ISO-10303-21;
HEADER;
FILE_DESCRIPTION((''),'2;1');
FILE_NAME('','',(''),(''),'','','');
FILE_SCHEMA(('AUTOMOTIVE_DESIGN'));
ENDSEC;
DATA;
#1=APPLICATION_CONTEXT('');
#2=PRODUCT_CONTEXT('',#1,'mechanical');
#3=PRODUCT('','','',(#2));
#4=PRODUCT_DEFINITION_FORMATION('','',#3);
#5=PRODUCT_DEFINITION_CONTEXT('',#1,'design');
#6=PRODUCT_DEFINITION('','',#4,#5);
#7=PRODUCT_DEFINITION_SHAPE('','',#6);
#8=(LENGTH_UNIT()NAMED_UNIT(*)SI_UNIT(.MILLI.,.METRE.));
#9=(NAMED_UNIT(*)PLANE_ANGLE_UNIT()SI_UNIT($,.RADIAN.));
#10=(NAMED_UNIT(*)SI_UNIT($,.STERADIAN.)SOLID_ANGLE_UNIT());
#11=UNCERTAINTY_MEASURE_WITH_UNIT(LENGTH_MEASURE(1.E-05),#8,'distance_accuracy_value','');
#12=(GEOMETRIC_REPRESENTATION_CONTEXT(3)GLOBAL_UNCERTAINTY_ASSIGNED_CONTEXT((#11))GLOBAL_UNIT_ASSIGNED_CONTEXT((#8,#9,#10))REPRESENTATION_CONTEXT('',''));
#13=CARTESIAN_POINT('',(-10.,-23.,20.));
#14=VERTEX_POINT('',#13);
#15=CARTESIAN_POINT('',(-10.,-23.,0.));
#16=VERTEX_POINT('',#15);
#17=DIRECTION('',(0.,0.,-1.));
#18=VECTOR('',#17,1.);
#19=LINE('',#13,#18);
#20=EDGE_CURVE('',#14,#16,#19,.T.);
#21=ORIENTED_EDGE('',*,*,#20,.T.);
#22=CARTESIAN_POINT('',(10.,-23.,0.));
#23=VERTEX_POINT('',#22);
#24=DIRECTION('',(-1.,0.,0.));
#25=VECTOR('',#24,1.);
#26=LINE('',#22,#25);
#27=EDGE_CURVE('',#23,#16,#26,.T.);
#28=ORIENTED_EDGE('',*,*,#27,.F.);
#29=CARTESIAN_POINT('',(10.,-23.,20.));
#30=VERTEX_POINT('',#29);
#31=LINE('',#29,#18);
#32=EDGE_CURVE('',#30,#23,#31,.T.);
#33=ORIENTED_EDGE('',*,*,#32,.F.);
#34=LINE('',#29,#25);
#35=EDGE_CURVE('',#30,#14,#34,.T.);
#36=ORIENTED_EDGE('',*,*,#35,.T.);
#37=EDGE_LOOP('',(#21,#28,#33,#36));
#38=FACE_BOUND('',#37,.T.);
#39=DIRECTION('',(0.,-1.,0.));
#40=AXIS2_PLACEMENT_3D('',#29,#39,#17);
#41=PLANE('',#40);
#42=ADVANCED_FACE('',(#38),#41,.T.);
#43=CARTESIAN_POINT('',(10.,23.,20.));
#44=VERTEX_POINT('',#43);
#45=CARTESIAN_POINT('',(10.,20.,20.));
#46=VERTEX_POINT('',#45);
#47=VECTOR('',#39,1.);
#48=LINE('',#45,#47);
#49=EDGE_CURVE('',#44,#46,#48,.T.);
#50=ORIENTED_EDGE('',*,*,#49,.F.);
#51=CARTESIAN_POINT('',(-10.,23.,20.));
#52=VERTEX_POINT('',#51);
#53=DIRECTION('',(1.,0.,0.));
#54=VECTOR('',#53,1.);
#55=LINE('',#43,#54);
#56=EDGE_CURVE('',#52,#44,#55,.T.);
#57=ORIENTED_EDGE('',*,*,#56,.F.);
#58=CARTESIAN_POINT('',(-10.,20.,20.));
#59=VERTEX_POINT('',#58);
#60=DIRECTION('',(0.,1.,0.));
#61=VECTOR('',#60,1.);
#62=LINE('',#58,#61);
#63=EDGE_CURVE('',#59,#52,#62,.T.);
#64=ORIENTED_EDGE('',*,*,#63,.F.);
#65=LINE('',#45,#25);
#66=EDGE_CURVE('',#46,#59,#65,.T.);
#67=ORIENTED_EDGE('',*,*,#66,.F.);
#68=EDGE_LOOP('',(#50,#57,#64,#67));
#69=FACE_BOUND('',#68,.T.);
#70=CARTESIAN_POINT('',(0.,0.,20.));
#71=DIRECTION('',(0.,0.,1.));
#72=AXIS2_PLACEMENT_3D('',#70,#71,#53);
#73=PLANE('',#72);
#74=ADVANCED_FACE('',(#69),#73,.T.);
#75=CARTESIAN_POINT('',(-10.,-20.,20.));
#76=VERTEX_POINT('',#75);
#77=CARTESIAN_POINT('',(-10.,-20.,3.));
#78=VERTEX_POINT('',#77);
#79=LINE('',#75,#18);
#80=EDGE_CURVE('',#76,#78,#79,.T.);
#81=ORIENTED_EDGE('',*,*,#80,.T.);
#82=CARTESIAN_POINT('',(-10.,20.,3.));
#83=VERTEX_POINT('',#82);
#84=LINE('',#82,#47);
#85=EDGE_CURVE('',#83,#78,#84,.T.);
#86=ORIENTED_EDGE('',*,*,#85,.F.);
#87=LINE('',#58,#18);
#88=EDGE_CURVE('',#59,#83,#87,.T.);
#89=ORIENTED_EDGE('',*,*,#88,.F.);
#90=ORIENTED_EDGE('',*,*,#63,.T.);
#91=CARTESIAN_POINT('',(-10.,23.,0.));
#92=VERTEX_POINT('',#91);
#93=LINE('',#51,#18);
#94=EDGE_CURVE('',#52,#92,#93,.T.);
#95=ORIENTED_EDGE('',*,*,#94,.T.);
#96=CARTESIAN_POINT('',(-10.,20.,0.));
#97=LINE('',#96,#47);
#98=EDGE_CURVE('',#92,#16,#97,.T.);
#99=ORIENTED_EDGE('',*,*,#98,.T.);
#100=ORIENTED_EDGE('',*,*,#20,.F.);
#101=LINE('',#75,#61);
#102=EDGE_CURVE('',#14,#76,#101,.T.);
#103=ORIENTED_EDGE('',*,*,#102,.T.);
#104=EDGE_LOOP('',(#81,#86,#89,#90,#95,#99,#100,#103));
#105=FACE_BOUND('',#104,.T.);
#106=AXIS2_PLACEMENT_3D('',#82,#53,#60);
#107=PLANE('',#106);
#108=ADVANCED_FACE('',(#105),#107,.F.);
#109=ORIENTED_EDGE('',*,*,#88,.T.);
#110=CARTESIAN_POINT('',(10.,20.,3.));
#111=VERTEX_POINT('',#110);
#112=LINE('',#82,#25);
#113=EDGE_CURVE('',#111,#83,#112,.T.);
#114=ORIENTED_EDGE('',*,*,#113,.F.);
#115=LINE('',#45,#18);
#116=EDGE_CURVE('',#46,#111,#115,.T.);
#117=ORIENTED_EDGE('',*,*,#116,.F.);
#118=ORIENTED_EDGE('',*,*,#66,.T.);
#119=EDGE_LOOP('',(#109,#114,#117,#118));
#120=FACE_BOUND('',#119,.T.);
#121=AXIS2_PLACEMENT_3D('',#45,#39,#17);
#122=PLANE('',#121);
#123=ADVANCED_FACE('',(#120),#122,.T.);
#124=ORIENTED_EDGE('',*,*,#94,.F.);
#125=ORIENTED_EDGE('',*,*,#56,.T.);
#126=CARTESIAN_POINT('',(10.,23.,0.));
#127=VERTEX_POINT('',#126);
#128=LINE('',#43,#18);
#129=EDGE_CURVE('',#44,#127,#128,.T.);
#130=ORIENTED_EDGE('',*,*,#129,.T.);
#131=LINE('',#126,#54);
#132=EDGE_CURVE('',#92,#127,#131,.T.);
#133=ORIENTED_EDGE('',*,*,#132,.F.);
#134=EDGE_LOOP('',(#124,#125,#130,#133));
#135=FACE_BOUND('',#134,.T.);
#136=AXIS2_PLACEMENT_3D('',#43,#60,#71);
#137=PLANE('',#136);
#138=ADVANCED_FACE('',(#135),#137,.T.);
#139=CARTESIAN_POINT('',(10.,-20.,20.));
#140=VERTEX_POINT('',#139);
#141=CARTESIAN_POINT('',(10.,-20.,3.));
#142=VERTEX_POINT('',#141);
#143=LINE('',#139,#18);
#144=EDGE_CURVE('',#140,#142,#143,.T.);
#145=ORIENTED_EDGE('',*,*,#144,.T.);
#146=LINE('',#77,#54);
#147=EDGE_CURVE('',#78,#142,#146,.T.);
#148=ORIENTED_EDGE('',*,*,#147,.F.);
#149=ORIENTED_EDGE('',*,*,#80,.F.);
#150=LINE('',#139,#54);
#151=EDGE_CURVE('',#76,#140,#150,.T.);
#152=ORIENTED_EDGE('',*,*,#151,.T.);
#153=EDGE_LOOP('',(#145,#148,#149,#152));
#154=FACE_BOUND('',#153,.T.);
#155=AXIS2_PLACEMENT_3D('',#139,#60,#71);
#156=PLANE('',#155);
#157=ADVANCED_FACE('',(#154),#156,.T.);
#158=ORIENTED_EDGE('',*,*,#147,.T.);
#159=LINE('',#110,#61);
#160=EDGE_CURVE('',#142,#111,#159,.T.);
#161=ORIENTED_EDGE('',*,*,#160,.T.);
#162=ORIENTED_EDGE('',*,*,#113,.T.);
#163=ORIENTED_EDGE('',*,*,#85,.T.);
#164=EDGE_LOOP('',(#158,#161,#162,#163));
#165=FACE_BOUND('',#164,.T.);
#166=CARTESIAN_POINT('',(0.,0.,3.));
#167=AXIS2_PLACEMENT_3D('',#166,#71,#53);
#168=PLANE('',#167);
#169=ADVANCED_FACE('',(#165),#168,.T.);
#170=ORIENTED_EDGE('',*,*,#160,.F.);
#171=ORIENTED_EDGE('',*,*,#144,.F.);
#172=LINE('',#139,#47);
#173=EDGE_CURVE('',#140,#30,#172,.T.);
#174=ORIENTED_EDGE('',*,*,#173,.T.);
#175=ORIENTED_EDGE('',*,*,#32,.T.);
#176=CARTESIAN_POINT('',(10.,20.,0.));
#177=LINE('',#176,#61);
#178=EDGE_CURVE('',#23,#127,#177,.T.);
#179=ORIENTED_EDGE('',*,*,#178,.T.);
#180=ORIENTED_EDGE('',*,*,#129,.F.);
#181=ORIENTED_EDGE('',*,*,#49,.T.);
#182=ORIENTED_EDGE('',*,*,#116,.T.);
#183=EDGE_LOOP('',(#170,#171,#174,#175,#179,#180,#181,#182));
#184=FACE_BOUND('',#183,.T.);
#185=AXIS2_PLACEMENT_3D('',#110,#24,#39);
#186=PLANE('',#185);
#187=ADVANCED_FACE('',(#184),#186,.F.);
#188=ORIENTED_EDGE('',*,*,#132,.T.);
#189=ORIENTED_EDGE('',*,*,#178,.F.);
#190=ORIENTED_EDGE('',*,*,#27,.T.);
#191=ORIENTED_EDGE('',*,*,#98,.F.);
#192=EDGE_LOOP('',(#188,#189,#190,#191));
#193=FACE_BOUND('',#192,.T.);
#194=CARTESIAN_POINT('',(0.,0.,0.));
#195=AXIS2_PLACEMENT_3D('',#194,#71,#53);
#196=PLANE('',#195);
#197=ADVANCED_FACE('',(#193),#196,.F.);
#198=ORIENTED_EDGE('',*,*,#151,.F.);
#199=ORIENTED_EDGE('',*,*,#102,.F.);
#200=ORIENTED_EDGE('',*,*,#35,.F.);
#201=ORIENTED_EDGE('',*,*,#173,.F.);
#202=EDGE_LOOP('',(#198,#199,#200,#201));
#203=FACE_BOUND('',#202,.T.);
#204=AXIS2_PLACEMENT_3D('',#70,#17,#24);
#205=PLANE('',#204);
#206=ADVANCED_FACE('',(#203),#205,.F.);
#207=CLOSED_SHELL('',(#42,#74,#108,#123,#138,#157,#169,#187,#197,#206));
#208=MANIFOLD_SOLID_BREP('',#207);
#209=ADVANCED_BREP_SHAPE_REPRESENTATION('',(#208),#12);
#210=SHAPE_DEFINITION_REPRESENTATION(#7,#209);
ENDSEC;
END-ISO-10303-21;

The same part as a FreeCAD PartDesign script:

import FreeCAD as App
import Part
import Sketcher

V = App.Vector

doc = App.newDocument("Part")
body = doc.addObject("PartDesign::Body", "Body")

# Sketch on XY plane
sketch1 = doc.addObject("Sketcher::SketchObject", "Sketch")
body.addObject(sketch1)
sketch1.AttachmentSupport = (doc.XY_Plane, [""])
sketch1.MapMode = "FlatFace"
sketch1.addGeometry(Part.LineSegment(V(-10, 20, 0), V(-10, -20, 0)), False)
sketch1.addGeometry(Part.LineSegment(V(-10, -20, 0), V(10, -20, 0)), False)
sketch1.addGeometry(Part.LineSegment(V(10, -20, 0), V(10, 20, 0)), False)
sketch1.addGeometry(Part.LineSegment(V(10, 20, 0), V(-10, 20, 0)), False)
sketch1.addConstraint(Sketcher.Constraint("Coincident", 0, 2, 1, 1))
sketch1.addConstraint(Sketcher.Constraint("Coincident", 1, 2, 2, 1))
sketch1.addConstraint(Sketcher.Constraint("Coincident", 2, 2, 3, 1))
sketch1.addConstraint(Sketcher.Constraint("Coincident", 3, 2, 0, 1))
sketch1.addConstraint(Sketcher.Constraint("Vertical", 0))
sketch1.addConstraint(Sketcher.Constraint("Horizontal", 1))
sketch1.addConstraint(Sketcher.Constraint("Vertical", 2))
sketch1.addConstraint(Sketcher.Constraint("Horizontal", 3))
sketch1.addConstraint(Sketcher.Constraint("Symmetric", 0, 2, 2, 2, -1, 1))
sketch1.addConstraint(Sketcher.Constraint("DistanceX", 1, 1, 1, 2, 20.0))
sketch1.addConstraint(Sketcher.Constraint("DistanceY", 0, 2, 0, 1, 40.0))
pad1 = doc.addObject("PartDesign::Pad", "Pad")
body.addObject(pad1)
pad1.Profile = sketch1
pad1.Length = 3

# Sketch on XY plane
sketch2 = doc.addObject("Sketcher::SketchObject", "Sketch001")
body.addObject(sketch2)
sketch2.AttachmentSupport = (doc.XY_Plane, [""])
sketch2.MapMode = "FlatFace"
sketch2.addGeometry(Part.LineSegment(V(10, 23, 0), V(10, 20, 0)), False)
sketch2.addGeometry(Part.LineSegment(V(10, 20, 0), V(-10, 20, 0)), False)
sketch2.addGeometry(Part.LineSegment(V(-10, 20, 0), V(-10, 23, 0)), False)
sketch2.addGeometry(Part.LineSegment(V(-10, 23, 0), V(10, 23, 0)), False)
sketch2.addGeometry(Part.LineSegment(V(10, -20, 0), V(10, -23, 0)), False)
sketch2.addGeometry(Part.LineSegment(V(10, -23, 0), V(-10, -23, 0)), False)
sketch2.addGeometry(Part.LineSegment(V(-10, -23, 0), V(-10, -20, 0)), False)
sketch2.addGeometry(Part.LineSegment(V(-10, -20, 0), V(10, -20, 0)), False)
sketch2.addConstraint(Sketcher.Constraint("Coincident", 0, 2, 1, 1))
sketch2.addConstraint(Sketcher.Constraint("Coincident", 1, 2, 2, 1))
sketch2.addConstraint(Sketcher.Constraint("Coincident", 2, 2, 3, 1))
sketch2.addConstraint(Sketcher.Constraint("Coincident", 3, 2, 0, 1))
sketch2.addConstraint(Sketcher.Constraint("Coincident", 4, 2, 5, 1))
sketch2.addConstraint(Sketcher.Constraint("Coincident", 5, 2, 6, 1))
sketch2.addConstraint(Sketcher.Constraint("Coincident", 6, 2, 7, 1))
sketch2.addConstraint(Sketcher.Constraint("Coincident", 7, 2, 4, 1))
sketch2.addConstraint(Sketcher.Constraint("Vertical", 0))
sketch2.addConstraint(Sketcher.Constraint("Horizontal", 1))
sketch2.addConstraint(Sketcher.Constraint("Vertical", 2))
sketch2.addConstraint(Sketcher.Constraint("Horizontal", 3))
sketch2.addConstraint(Sketcher.Constraint("Vertical", 4))
sketch2.addConstraint(Sketcher.Constraint("Horizontal", 5))
sketch2.addConstraint(Sketcher.Constraint("Vertical", 6))
sketch2.addConstraint(Sketcher.Constraint("Horizontal", 7))
sketch2.addConstraint(Sketcher.Constraint("Symmetric", 2, 2, 4, 2, -1, 1))
sketch2.addConstraint(Sketcher.Constraint("Symmetric", 0, 2, 6, 2, -1, 1))
sketch2.addConstraint(Sketcher.Constraint("Vertical", 3, 2, 4, 2))
sketch2.addConstraint(Sketcher.Constraint("DistanceX", 1, 2, 1, 1, 20.0))
sketch2.addConstraint(Sketcher.Constraint("DistanceY", 0, 2, 0, 1, 3.0))
sketch2.addConstraint(Sketcher.Constraint("DistanceY", -1, 1, 0, 2, 20.0))
pad2 = doc.addObject("PartDesign::Pad", "Pad001")
body.addObject(pad2)
pad2.Profile = sketch2
pad2.Length = 20

doc.recompute()
